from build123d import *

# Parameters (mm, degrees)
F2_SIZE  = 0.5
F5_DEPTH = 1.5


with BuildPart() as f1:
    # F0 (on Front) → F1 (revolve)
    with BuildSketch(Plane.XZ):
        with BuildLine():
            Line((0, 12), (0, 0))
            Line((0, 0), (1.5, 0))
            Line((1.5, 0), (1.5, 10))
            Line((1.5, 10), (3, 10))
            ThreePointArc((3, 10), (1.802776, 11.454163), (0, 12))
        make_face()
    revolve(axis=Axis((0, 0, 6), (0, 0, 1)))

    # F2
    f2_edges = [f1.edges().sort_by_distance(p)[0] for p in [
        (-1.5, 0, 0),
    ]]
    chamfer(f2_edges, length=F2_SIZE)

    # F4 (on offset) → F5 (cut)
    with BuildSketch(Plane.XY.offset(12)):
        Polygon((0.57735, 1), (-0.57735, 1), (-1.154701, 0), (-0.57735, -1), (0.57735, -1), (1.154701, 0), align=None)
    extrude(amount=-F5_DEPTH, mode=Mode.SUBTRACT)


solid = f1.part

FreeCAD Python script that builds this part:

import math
import FreeCAD as App
import Part
import Sketcher

V = App.Vector
Q = App.Units.Quantity


def edges_at(feature, points):
    """Names of the edges that pass closest to the given points."""
    edges = feature.Shape.Edges
    near = lambda p: min(range(len(edges)), key=lambda i: edges[i].distToShape(Part.Vertex(*p))[0])
    return sorted({f"Edge{near(p) + 1}" for p in points})


def add_polygon(sketch, points):
    """Adds a closed chain of lines whose ends are joined by coincident constraints."""
    first, n = sketch.GeometryCount, len(points)
    for a, b in zip(points, points[1:] + points[:1]):
        sketch.addGeometry(Part.LineSegment(App.Vector(*a, 0), App.Vector(*b, 0)), False)
    for i in range(n):
        sketch.addConstraint(Sketcher.Constraint("Coincident", first + i, 2, first + (i + 1) % n, 1))

doc = App.newDocument("Part")
body = doc.addObject("PartDesign::Body", "Body")

# Sketch on XZ plane
sketch1 = body.newObject("Sketcher::SketchObject", "Sketch")
sketch1.AttachmentSupport = (doc.getObject("XZ_Plane"), [""])
sketch1.MapMode = "FlatFace"
sketch1.addGeometry(Part.LineSegment(V(0, 12, 0), V(0, 0, 0)), False)
sketch1.addGeometry(Part.LineSegment(V(0, 0, 0), V(1.5, 0, 0)), False)
sketch1.addGeometry(Part.LineSegment(V(1.5, 0, 0), V(1.5, 10, 0)), False)
sketch1.addGeometry(Part.LineSegment(V(1.5, 10, 0), V(3, 10, 0)), False)
sketch1.addGeometry(Part.ArcOfCircle(Part.Circle(V(0, 8.7, 0), V(0, 0, 1), 3.3), math.radians(23), math.radians(90)), False)
sketch1.addConstraint(Sketcher.Constraint("Coincident", 0, 2, 1, 1))
sketch1.addConstraint(Sketcher.Constraint("Coincident", 1, 2, 2, 1))
sketch1.addConstraint(Sketcher.Constraint("Coincident", 2, 2, 3, 1))
sketch1.addConstraint(Sketcher.Constraint("Coincident", 3, 2, 4, 1))
sketch1.addConstraint(Sketcher.Constraint("Coincident", 4, 2, 0, 1))
sketch1.addConstraint(Sketcher.Constraint("Vertical", 0))
sketch1.addConstraint(Sketcher.Constraint("Horizontal", 1))
sketch1.addConstraint(Sketcher.Constraint("Vertical", 2))
sketch1.addConstraint(Sketcher.Constraint("Horizontal", 3))
sketch1.addConstraint(Sketcher.Constraint("Coincident", 0, 2, -1, 1))
sketch1.addConstraint(Sketcher.Constraint("PointOnObject", 4, 3, -2))
sketch1.addConstraint(Sketcher.Constraint("Equal", 1, 3))
sketch1.addConstraint(Sketcher.Constraint("DistanceY", 0, 2, 0, 1, Q("12 mm")))
sketch1.addConstraint(Sketcher.Constraint("DistanceY", 2, 1, 2, 2, Q("10 mm")))
sketch1.addConstraint(Sketcher.Constraint("Radius", 4, Q("3.250001 mm")))
revolution = body.newObject("PartDesign::Revolution", "Revolution")
revolution.Profile = sketch1
revolution.ReferenceAxis = (sketch1, ["V_Axis"])
revolution.Angle = 360
doc.recompute()

chamfer = body.newObject("PartDesign::Chamfer", "Chamfer")
chamfer.Base = (revolution, edges_at(revolution, [(-1.5, 0, 0)]))
chamfer.Size = 0.5

# Sketch on XY plane
sketch2 = body.newObject("Sketcher::SketchObject", "Sketch001")
sketch2.AttachmentSupport = (doc.getObject("XY_Plane"), [""])
sketch2.MapMode = "FlatFace"
sketch2.AttachmentOffset = App.Placement(V(0, 0, 12), App.Rotation())
add_polygon(sketch2, [(0.6, 1), (-0.6, 1), (-1.2, 0), (-0.6, -1), (0.6, -1), (1.2, 0)])  # lines 0-5
sketch2.addConstraint(Sketcher.Constraint("Horizontal", 0))
sketch2.addConstraint(Sketcher.Constraint("Horizontal", 3))
sketch2.addConstraint(Sketcher.Constraint("Symmetric", 0, 2, 3, 2, -1, 1))
sketch2.addConstraint(Sketcher.Constraint("Symmetric", 1, 2, 4, 2, -1, 1))
sketch2.addConstraint(Sketcher.Constraint("PointOnObject", 1, 2, -1))
sketch2.addConstraint(Sketcher.Constraint("Parallel", 2, 5))
sketch2.addConstraint(Sketcher.Constraint("Vertical", 0, 2, 2, 2))
sketch2.addConstraint(Sketcher.Constraint("DistanceY", -1, 1, 0, 2, Q("1 mm")))
sketch2.addConstraint(Sketcher.Constraint("DistanceX", 0, 2, 0, 1, Q("1.1547 mm")))
sketch2.addConstraint(Sketcher.Constraint("Distance", 1, Q("1.154701 mm")))
pocket1 = body.newObject("PartDesign::Pocket", "Pocket")
pocket1.Profile = sketch2
pocket1.Length = 1.5

doc.recompute()
